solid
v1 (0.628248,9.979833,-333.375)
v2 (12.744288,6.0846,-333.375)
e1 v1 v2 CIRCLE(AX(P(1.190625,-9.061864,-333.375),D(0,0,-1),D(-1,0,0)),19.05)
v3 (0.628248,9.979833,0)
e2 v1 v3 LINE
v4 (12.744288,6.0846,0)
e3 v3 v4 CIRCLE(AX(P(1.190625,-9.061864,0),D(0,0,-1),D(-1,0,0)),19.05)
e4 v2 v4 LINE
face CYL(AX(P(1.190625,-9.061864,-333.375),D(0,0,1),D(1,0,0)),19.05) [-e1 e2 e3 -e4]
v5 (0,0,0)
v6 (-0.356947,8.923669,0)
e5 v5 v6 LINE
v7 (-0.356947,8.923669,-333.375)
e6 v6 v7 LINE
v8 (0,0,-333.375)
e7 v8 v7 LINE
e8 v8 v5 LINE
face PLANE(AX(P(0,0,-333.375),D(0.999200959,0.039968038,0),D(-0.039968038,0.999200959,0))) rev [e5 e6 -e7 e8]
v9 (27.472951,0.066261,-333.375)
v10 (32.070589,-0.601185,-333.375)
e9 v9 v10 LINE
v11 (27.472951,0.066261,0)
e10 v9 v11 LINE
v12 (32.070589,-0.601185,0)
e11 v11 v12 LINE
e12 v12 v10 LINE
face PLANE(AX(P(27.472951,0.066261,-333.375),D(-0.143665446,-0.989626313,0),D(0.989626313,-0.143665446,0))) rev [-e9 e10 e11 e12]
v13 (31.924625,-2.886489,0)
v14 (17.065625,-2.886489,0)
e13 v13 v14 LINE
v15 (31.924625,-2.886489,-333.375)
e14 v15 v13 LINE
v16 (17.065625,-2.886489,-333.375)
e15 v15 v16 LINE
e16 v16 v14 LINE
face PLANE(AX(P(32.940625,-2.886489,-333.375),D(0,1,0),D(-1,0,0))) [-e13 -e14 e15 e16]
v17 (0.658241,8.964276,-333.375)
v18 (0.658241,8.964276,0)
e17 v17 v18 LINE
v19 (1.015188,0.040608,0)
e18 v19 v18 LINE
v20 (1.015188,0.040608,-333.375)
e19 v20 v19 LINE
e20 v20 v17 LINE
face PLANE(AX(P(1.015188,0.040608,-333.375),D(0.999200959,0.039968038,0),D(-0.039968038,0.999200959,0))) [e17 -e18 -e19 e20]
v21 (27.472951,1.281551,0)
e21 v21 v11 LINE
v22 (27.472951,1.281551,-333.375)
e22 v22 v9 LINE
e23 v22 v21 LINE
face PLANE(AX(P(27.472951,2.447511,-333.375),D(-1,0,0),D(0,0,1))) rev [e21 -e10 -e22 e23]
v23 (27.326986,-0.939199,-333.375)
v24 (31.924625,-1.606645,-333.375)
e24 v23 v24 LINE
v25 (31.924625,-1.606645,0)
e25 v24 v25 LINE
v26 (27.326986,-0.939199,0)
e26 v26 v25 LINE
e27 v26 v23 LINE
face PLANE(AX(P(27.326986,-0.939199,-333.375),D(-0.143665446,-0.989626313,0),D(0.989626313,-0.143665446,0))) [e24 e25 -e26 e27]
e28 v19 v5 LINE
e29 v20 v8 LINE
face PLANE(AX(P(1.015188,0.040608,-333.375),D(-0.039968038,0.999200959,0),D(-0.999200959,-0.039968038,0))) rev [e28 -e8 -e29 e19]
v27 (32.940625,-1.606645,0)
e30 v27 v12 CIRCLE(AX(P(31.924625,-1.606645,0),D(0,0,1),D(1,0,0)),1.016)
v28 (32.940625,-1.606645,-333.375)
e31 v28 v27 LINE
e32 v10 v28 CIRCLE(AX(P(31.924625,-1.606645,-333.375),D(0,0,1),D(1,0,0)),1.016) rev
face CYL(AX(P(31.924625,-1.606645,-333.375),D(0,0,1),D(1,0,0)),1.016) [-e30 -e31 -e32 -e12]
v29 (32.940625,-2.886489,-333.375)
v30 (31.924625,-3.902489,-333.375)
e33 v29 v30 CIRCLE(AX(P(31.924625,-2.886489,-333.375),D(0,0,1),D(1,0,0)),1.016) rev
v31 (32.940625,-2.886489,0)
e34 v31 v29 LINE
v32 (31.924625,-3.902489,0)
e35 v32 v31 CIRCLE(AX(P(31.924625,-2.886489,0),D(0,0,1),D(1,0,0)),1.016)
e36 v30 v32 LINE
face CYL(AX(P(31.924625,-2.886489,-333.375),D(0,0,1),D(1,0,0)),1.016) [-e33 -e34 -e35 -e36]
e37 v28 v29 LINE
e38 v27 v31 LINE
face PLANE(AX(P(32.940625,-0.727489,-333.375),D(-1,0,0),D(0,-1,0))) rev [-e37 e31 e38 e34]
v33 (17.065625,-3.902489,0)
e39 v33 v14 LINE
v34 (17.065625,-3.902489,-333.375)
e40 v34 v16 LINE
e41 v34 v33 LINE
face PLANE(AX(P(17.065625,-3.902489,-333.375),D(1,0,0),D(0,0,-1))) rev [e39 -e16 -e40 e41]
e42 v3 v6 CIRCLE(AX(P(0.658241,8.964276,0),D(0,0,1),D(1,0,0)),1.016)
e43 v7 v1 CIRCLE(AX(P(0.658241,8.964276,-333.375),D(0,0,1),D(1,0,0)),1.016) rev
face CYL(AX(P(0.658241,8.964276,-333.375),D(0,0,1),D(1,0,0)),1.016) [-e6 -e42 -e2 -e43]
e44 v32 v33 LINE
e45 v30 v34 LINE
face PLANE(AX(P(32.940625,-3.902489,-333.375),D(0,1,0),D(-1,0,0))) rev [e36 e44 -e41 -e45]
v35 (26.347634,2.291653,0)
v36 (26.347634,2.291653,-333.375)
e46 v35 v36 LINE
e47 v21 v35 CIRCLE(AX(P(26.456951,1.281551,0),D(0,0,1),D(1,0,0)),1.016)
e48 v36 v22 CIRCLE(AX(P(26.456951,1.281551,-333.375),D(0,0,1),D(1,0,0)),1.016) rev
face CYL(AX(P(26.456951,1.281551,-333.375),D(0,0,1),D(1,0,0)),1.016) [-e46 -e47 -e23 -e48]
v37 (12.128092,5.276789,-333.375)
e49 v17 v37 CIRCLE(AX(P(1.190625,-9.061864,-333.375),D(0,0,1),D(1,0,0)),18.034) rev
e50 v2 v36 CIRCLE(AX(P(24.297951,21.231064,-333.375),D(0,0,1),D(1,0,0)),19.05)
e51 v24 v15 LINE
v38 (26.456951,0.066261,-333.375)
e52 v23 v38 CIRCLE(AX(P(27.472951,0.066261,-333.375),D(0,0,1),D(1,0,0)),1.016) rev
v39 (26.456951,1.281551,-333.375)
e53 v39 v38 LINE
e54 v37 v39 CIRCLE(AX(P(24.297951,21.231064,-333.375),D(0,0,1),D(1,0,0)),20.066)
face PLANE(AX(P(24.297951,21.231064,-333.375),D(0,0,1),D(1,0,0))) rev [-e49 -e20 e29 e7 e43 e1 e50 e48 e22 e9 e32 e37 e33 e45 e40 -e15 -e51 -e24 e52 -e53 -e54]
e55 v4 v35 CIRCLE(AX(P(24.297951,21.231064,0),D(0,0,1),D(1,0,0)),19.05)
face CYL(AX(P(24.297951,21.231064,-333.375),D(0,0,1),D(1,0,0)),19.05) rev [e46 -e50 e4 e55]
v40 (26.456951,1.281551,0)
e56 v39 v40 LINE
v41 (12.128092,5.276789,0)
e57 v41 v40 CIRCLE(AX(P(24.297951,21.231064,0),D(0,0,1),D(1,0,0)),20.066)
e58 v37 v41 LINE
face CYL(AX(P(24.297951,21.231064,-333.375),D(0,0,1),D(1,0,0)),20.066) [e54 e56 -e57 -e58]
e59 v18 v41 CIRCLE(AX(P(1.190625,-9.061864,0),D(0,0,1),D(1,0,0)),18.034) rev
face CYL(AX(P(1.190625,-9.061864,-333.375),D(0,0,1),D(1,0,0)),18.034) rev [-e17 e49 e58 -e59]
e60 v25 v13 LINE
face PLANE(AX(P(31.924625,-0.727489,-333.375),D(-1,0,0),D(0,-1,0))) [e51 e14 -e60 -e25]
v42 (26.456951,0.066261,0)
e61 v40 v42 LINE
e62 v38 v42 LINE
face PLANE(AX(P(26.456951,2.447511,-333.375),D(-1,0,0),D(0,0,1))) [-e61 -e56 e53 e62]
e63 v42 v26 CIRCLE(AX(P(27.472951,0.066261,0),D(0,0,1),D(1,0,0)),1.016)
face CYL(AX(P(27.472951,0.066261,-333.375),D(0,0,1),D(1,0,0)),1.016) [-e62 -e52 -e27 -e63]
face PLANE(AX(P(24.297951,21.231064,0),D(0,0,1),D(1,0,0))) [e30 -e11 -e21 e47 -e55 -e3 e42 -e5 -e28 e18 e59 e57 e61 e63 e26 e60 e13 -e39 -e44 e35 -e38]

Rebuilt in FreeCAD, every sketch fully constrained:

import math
import FreeCAD as App
import Part
import Sketcher
from FreeCAD import Vector
Q = App.Units.Quantity


def edges_at(feature, points):
    """Names of the edges that pass closest to the given points."""
    edges = feature.Shape.Edges
    near = lambda p: min(range(len(edges)), key=lambda i: edges[i].distToShape(Part.Vertex(*p))[0])
    return sorted({f"Edge{near(p) + 1}" for p in points})

doc = App.newDocument("Part")
body = doc.addObject("PartDesign::Body", "Body")

# Sketch on XY plane
sketch1 = body.newObject("Sketcher::SketchObject", "Sketch")
sketch1.AttachmentSupport = (doc.getObject("XY_Plane"), [""])
sketch1.MapMode = "FlatFace"
sketch1.addGeometry(Part.LineSegment(Vector(-0.4, 9.9, 0), Vector(0, 0, 0)), False)
sketch1.addGeometry(Part.LineSegment(Vector(0, 0, 0), Vector(1, 0, 0)), False)
sketch1.addGeometry(Part.LineSegment(Vector(1, 0, 0), Vector(0.7, 9, 0)), False)
sketch1.addGeometry(Part.ArcOfCircle(Part.Circle(Vector(1.2, -9.1, 0), Vector(0, 0, 1), 18), math.radians(53), math.radians(92)), False)
sketch1.addGeometry(Part.ArcOfCircle(Part.Circle(Vector(24.3, 21.2, 0), Vector(0, 0, 1), 20.1), math.radians(-127), math.radians(-84)), False)
sketch1.addGeometry(Part.LineSegment(Vector(26.5, 1.3, 0), Vector(26.5, -0.8, 0)), False)
sketch1.addGeometry(Part.LineSegment(Vector(26.5, -0.8, 0), Vector(31.9, -1.6, 0)), False)
sketch1.addGeometry(Part.LineSegment(Vector(31.9, -1.6, 0), Vector(31.9, -2.9, 0)), False)
sketch1.addGeometry(Part.LineSegment(Vector(31.9, -2.9, 0), Vector(17.1, -2.9, 0)), False)
sketch1.addGeometry(Part.LineSegment(Vector(17.1, -2.9, 0), Vector(17.1, -3.9, 0)), False)
sketch1.addGeometry(Part.LineSegment(Vector(17.1, -3.9, 0), Vector(32.9, -3.9, 0)), False)
sketch1.addGeometry(Part.LineSegment(Vector(32.9, -3.9, 0), Vector(32.9, -0.7, 0)), False)
sketch1.addGeometry(Part.LineSegment(Vector(32.9, -0.7, 0), Vector(27.5, 0.1, 0)), False)
sketch1.addGeometry(Part.LineSegment(Vector(27.5, 0.1, 0), Vector(27.5, 2.4, 0)), False)
sketch1.addGeometry(Part.ArcOfCircle(Part.Circle(Vector(24.3, 21.2, 0), Vector(0, 0, 1), 19.1), math.radians(-127), math.radians(-80)), False)
sketch1.addGeometry(Part.ArcOfCircle(Part.Circle(Vector(1.2, -9.1, 0), Vector(0, 0, 1), 19.1), math.radians(53), math.radians(95)), False)
sketch1.addConstraint(Sketcher.Constraint("Coincident", 0, 2, 1, 1))
sketch1.addConstraint(Sketcher.Constraint("Coincident", 1, 2, 2, 1))
sketch1.addConstraint(Sketcher.Constraint("Coincident", 2, 2, 3, 2))
sketch1.addConstraint(Sketcher.Constraint("Tangent", 3, 1, 4, 1))
sketch1.addConstraint(Sketcher.Constraint("Coincident", 4, 2, 5, 1))
sketch1.addConstraint(Sketcher.Constraint("Coincident", 5, 2, 6, 1))
sketch1.addConstraint(Sketcher.Constraint("Coincident", 6, 2, 7, 1))
sketch1.addConstraint(Sketcher.Constraint("Coincident", 7, 2, 8, 1))
sketch1.addConstraint(Sketcher.Constraint("Coincident", 8, 2, 9, 1))
sketch1.addConstraint(Sketcher.Constraint("Coincident", 9, 2, 10, 1))
sketch1.addConstraint(Sketcher.Constraint("Coincident", 10, 2, 11, 1))
sketch1.addConstraint(Sketcher.Constraint("Coincident", 11, 2, 12, 1))
sketch1.addConstraint(Sketcher.Constraint("Coincident", 12, 2, 13, 1))
sketch1.addConstraint(Sketcher.Constraint("Coincident", 13, 2, 14, 2))
sketch1.addConstraint(Sketcher.Constraint("Tangent", 14, 1, 15, 1))
sketch1.addConstraint(Sketcher.Constraint("Coincident", 15, 2, 0, 1))
sketch1.addConstraint(Sketcher.Constraint("Vertical", 5))
sketch1.addConstraint(Sketcher.Constraint("Vertical", 7))
sketch1.addConstraint(Sketcher.Constraint("Horizontal", 8))
sketch1.addConstraint(Sketcher.Constraint("Vertical", 9))
sketch1.addConstraint(Sketcher.Constraint("Horizontal", 10))
sketch1.addConstraint(Sketcher.Constraint("Vertical", 11))
sketch1.addConstraint(Sketcher.Constraint("Vertical", 13))
sketch1.addConstraint(Sketcher.Constraint("Coincident", 0, 2, -1, 1))
sketch1.addConstraint(Sketcher.Constraint("Coincident", 14, 3, 4, 3))
sketch1.addConstraint(Sketcher.Constraint("Coincident", 15, 3, 3, 3))
sketch1.addConstraint(Sketcher.Constraint("Equal", 14, 15))
sketch1.addConstraint(Sketcher.Constraint("Perpendicular", 0, 1))
sketch1.addConstraint(Sketcher.Constraint("Perpendicular", 1, 2))
sketch1.addConstraint(Sketcher.Constraint("Parallel", 6, 12))
sketch1.addConstraint(Sketcher.Constraint("Equal", 6, 12))
sketch1.addConstraint(Sketcher.Constraint("Radius", 3, Q("0.71 in")))
sketch1.addConstraint(Sketcher.Constraint("Radius", 4, Q("0.79 in")))
sketch1.addConstraint(Sketcher.Constraint("DistanceY", 9, 2, 9, 1, Q("0.04 in")))
sketch1.addConstraint(Sketcher.Constraint("Distance", 1, Q("0.04 in")))
sketch1.addConstraint(Sketcher.Constraint("DistanceX", 8, 2, 8, 1, Q("0.585 in")))
sketch1.addConstraint(Sketcher.Constraint("DistanceX", 10, 1, 10, 2, Q("0.625 in")))
sketch1.addConstraint(Sketcher.Constraint("DistanceY", 11, 1, 11, 2, Q("0.125 in")))
sketch1.addConstraint(Sketcher.Constraint("DistanceY", 13, 1, 13, 2, Q("0.09375 in")))
sketch1.addConstraint(Sketcher.Constraint("Angle", 6, Q("-8.260006 deg")))
sketch1.addConstraint(Sketcher.Constraint("DistanceX", -1, 1, 3, 3, Q("0.046875 in")))
sketch1.addConstraint(Sketcher.Constraint("DistanceX", -1, 1, 8, 2, Q("0.671875 in")))
sketch1.addConstraint(Sketcher.Constraint("DistanceX", 15, 2, -1, 1, Q("0.015625 in")))
sketch1.addConstraint(Sketcher.Constraint("DistanceY", -1, 1, 15, 2, Q("0.390625 in")))
sketch1.addConstraint(Sketcher.Constraint("DistanceX", 14, 3, 4, 2, Q("0.085 in")))
sketch1.addConstraint(Sketcher.Constraint("DistanceY", 6, 2, 5, 2, Q("0.03125 in")))
sketch1.addConstraint(Sketcher.Constraint("DistanceY", 5, 2, 5, 1, 2.094446))
pad1 = body.newObject("PartDesign::Pad", "Pad")
pad1.Profile = sketch1
pad1.Length = Q("13.125 in")
pad1.Reversed = True
doc.recompute()

fillet = body.newObject("PartDesign::Fillet", "Fillet")
fillet.Base = (pad1, edges_at(pad1, [
    (26.457, -0.813, -166.688),
    (-0.397, 9.922, -166.688),
    (27.473, 2.448, -166.688),
    (32.941, -0.727, -166.688),
    (32.941, -3.902, -166.688),
]))
fillet.Radius = Q("0.04 in")

doc.recompute()
